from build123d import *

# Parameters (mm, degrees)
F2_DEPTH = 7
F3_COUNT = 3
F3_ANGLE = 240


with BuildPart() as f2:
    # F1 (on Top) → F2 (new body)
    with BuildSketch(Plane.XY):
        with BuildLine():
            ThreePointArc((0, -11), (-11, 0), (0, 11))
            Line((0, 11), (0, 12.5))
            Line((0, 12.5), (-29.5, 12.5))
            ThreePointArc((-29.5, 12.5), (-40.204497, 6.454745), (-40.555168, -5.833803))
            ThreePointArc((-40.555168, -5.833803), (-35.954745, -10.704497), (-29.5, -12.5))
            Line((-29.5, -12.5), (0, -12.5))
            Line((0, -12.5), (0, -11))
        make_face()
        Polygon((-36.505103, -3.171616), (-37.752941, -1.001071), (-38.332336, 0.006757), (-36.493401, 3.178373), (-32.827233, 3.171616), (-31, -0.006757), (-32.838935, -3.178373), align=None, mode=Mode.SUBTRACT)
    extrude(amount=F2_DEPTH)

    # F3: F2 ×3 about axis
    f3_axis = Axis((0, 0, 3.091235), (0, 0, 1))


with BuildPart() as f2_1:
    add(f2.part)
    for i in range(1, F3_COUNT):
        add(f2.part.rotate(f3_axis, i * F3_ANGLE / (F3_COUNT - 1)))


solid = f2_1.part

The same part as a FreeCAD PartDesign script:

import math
import FreeCAD as App
import Part
import Sketcher
Q = App.Units.Quantity


def add_polygon(sketch, points):
    """Adds a closed chain of lines whose ends are joined by coincident constraints."""
    first, n = sketch.GeometryCount, len(points)
    for a, b in zip(points, points[1:] + points[:1]):
        sketch.addGeometry(Part.LineSegment(App.Vector(*a, 0), App.Vector(*b, 0)), False)
    for i in range(n):
        sketch.addConstraint(Sketcher.Constraint("Coincident", first + i, 2, first + (i + 1) % n, 1))

doc = App.newDocument("Part")
params = doc.addObject("Spreadsheet::Sheet", "Params")
for row, (alias, value) in enumerate([
    ("sketch1_radius", "11 mm"),
    ("sketch1_radius2", "12.5 mm"),
    ("sketch1_width", "29.5 mm"),
    ("pad1_length", "7 mm"),
], start=1):
    params.set(f"A{row}", alias)
    params.set(f"B{row}", "=" + value)
    params.setAlias(f"B{row}", alias)

body = doc.addObject("PartDesign::Body", "Body")

sketch1 = body.newObject("Sketcher::SketchObject", "Sketch")
sketch1.AttachmentSupport = (doc.getObject("XY_Plane"), [""])
sketch1.MapMode = "FlatFace"
sketch1.addGeometry(Part.ArcOfCircle(Part.Circle(App.Vector(0, 0, 0), App.Vector(0, 0, 1), 11), math.radians(90), math.radians(270)), False)
sketch1.addGeometry(Part.LineSegment(App.Vector(0, 11, 0), App.Vector(0, 12.5, 0)), False)
sketch1.addGeometry(Part.LineSegment(App.Vector(0, 12.5, 0), App.Vector(-29.5, 12.5, 0)), False)
sketch1.addGeometry(Part.ArcOfCircle(Part.Circle(App.Vector(-29.5, 0, 0), App.Vector(0, 0, 1), 12.5), math.radians(90), math.radians(208)), False)
sketch1.addGeometry(Part.ArcOfCircle(Part.Circle(App.Vector(-29.5, 0, 0), App.Vector(0, 0, 1), 12.5), math.radians(-152), math.radians(-90)), False)
sketch1.addGeometry(Part.LineSegment(App.Vector(-29.5, -12.5, 0), App.Vector(0, -12.5, 0)), False)
sketch1.addGeometry(Part.LineSegment(App.Vector(0, -12.5, 0), App.Vector(0, -11, 0)), False)
add_polygon(sketch1, [(-32.8, -3.2), (-36.5, -3.2), (-37.8, -1), (-38.3, 0), (-36.5, 3.2), (-32.8, 3.2), (-31, 0)])
sketch1.addConstraint([
    Sketcher.Constraint("Coincident", 0, 1, 1, 1),
    Sketcher.Constraint("Coincident", 1, 2, 2, 1),
    Sketcher.Constraint("Tangent", 2, 2, 3, 1),
    Sketcher.Constraint("Tangent", 3, 2, 4, 1),
    Sketcher.Constraint("Tangent", 4, 2, 5, 1),
    Sketcher.Constraint("Coincident", 5, 2, 6, 1),
    Sketcher.Constraint("Coincident", 6, 2, 0, 2),
    Sketcher.Constraint("Vertical", 1),
    Sketcher.Constraint("Horizontal", 2),
    Sketcher.Constraint("Horizontal", 5),
    Sketcher.Constraint("Vertical", 6),
    Sketcher.Constraint("Coincident", 0, 3, -1, 1),
    Sketcher.Constraint("Equal", 3, 4),
    Sketcher.Constraint("Symmetric", 1, 2, 5, 2, -1, 1),
    Sketcher.Constraint("PointOnObject", 0, 1, -2),
    Sketcher.Constraint("Parallel", 8, 9),
    Sketcher.Constraint("Parallel", 7, 11),
    Sketcher.Constraint("Parallel", 9, 12),
    Sketcher.Constraint("Parallel", 10, 13),
    Sketcher.Constraint("Equal", 7, 10),
    Sketcher.Constraint("Equal", 10, 11),
    Sketcher.Constraint("Equal", 11, 12),
    Sketcher.Constraint("Radius", 0, Q("11 mm")),
    Sketcher.Constraint("Radius", 3, Q("12.5 mm")),
    Sketcher.Constraint("DistanceX", 2, 2, 2, 1, Q("29.5 mm")),
    Sketcher.Constraint("DistanceX", 12, 2, -1, 1, Q("31 mm")),
    Sketcher.Constraint("DistanceX", 10, 2, -1, 1, Q("36.493401 mm")),
    Sketcher.Constraint("DistanceX", 7, 2, 10, 2, Q("0.011702 mm")),
    Sketcher.Constraint("Distance", 8, Q("2.50367 mm")),
    Sketcher.Constraint("DistanceX", 3, 2, -1, 1, Q("40.555168 mm")),
    Sketcher.Constraint("DistanceX", 8, 2, -1, 1, Q("37.752941 mm")),
    Sketcher.Constraint("DistanceY", 8, 2, -1, 1, Q("1.001071 mm")),
    Sketcher.Constraint("DistanceY", 9, 2, 11, 2, Q("3.164859 mm")),
])
sketch1.setExpression("Constraints[29]", "Params.sketch1_radius")
sketch1.setExpression("Constraints[30]", "Params.sketch1_radius2")
sketch1.setExpression("Constraints[31]", "Params.sketch1_width")
pad1 = body.newObject("PartDesign::Pad", "Pad")
pad1.Profile = sketch1
pad1.setExpression("Length", "Params.pad1_length")
body2 = doc.addObject("PartDesign::Body", "Body001")
doc.recompute()

body2.BaseFeature = body
doc.recompute()

body3 = doc.addObject("PartDesign::Body", "Body002")
body3.BaseFeature = body
body3.Placement = App.Placement(App.Vector(0, 0, 0), App.Rotation(App.Vector(0, 0, 1), 120))
boolean = body2.newObject("PartDesign::Boolean", "Boolean")
boolean.Type = "Fuse"
boolean.addObjects([body3])
doc.recompute()

body.Placement = App.Placement(App.Vector(0, 0, 0), App.Rotation(App.Vector(0, 0, 1), 240))
boolean2 = body2.newObject("PartDesign::Boolean", "Boolean001")
boolean2.Type = "Fuse"
boolean2.addObjects([body])

doc.recompute()
